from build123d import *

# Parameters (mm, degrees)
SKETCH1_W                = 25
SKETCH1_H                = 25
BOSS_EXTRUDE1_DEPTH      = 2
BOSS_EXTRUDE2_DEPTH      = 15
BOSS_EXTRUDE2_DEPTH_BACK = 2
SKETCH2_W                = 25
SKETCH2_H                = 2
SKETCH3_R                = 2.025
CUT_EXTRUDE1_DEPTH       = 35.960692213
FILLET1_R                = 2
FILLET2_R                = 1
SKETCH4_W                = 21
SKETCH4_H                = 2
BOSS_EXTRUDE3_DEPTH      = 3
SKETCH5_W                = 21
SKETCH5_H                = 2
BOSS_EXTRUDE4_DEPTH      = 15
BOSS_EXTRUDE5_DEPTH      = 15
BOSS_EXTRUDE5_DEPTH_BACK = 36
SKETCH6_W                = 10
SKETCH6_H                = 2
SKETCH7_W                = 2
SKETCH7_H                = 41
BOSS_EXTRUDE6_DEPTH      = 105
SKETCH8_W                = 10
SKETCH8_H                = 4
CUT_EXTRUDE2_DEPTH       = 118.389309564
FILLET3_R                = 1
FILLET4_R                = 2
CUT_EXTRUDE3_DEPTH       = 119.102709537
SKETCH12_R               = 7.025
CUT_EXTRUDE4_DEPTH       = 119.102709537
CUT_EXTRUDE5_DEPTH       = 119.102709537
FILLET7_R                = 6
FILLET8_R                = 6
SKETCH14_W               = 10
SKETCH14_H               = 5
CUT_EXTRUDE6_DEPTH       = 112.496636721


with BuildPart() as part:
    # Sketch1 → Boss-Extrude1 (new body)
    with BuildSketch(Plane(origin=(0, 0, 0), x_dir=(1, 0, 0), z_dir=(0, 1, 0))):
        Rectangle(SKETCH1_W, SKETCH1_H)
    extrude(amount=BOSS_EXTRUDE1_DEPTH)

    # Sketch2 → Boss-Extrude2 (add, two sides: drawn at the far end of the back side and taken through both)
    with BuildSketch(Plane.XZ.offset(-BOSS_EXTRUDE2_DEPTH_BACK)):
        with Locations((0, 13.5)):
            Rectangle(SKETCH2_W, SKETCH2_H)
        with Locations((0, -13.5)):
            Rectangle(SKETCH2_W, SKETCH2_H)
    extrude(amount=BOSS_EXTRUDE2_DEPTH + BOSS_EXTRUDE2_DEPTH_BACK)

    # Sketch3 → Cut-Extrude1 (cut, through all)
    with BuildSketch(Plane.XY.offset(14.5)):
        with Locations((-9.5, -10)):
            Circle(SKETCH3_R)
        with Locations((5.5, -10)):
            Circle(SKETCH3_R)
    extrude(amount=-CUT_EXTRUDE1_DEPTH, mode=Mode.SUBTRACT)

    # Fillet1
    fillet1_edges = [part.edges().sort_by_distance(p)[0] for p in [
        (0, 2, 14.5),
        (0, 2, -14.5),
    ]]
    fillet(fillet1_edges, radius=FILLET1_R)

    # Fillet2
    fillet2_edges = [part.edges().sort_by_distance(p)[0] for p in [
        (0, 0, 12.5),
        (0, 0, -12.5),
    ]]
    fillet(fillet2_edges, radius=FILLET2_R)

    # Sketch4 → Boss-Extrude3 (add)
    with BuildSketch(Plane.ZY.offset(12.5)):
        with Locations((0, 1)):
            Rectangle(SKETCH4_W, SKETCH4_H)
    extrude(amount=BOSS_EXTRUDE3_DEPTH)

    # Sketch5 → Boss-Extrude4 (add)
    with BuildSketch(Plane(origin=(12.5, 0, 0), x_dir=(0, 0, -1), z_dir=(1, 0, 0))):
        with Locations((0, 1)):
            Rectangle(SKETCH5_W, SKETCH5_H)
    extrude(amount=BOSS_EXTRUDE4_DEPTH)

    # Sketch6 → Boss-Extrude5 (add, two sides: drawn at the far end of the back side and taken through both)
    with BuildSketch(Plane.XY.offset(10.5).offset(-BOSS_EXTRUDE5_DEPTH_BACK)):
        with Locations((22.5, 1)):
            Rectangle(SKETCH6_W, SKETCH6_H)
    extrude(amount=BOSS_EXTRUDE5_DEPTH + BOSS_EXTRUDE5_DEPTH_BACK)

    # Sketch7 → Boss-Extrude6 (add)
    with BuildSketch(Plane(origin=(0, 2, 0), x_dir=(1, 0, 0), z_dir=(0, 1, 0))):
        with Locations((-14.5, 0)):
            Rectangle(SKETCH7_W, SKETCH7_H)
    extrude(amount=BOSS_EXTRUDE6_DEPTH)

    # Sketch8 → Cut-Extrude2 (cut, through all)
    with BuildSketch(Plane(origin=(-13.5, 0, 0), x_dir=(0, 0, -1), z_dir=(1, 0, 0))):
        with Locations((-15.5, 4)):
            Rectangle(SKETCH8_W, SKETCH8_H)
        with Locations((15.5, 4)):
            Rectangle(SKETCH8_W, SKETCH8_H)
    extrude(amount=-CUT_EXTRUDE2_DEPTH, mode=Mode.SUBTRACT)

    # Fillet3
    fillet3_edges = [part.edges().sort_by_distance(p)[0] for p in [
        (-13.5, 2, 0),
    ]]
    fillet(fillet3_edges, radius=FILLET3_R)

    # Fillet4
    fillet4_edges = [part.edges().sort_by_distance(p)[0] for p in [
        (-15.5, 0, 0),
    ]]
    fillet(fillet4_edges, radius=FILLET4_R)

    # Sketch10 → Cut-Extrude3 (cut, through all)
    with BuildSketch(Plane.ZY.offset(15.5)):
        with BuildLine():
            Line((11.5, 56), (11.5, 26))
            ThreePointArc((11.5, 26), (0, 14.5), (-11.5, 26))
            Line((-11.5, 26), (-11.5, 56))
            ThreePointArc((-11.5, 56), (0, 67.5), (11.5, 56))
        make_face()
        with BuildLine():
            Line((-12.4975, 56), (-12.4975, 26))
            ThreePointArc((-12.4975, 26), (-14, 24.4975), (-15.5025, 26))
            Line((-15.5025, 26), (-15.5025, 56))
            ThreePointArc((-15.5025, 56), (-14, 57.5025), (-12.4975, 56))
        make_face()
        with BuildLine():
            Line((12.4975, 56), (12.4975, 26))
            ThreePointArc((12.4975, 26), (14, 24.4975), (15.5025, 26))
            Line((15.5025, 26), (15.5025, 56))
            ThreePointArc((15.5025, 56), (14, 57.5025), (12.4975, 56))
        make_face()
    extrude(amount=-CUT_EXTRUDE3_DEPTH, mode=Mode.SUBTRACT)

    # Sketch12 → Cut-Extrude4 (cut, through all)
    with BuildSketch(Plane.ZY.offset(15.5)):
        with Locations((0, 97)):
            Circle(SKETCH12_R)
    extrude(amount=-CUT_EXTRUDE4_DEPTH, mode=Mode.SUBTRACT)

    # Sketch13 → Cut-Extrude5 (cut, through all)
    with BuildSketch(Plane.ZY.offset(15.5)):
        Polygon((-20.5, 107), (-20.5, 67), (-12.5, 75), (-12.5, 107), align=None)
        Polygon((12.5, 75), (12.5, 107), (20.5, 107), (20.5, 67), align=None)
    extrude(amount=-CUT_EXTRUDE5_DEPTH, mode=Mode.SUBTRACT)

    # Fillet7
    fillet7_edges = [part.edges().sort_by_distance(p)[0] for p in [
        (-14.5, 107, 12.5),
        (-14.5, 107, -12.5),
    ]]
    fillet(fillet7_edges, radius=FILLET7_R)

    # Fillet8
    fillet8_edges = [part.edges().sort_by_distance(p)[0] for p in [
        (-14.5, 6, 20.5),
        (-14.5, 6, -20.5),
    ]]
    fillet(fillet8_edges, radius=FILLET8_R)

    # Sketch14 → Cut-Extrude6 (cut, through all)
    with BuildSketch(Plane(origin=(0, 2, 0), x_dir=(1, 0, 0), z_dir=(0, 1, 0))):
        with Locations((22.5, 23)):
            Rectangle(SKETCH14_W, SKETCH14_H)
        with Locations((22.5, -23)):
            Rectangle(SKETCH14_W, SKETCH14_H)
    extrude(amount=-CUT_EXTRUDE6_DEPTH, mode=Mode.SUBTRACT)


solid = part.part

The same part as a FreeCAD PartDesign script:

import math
import FreeCAD as App
import Part
import Sketcher
from FreeCAD import Vector
Q = App.Units.Quantity


def edges_at(feature, points):
    """Names of the edges that pass closest to the given points."""
    edges = feature.Shape.Edges
    near = lambda p: min(range(len(edges)), key=lambda i: edges[i].distToShape(Part.Vertex(*p))[0])
    return sorted({f"Edge{near(p) + 1}" for p in points})

doc = App.newDocument("Part")
body = doc.addObject("PartDesign::Body", "Body")

# Sketch on XZ plane
sketch1 = body.newObject("Sketcher::SketchObject", "Sketch")
sketch1.AttachmentSupport = (doc.getObject("XZ_Plane"), [""])
sketch1.MapMode = "FlatFace"
sketch1.addGeometry(Part.LineSegment(Vector(-12, -12, 0), Vector(-12, 12, 0)), False)
sketch1.addGeometry(Part.LineSegment(Vector(-12, 12, 0), Vector(12, 12, 0)), False)
sketch1.addGeometry(Part.LineSegment(Vector(12, 12, 0), Vector(12, -12, 0)), False)
sketch1.addGeometry(Part.LineSegment(Vector(12, -12, 0), Vector(-12, -12, 0)), False)
sketch1.addConstraint(Sketcher.Constraint("Coincident", 0, 2, 1, 1))
sketch1.addConstraint(Sketcher.Constraint("Coincident", 1, 2, 2, 1))
sketch1.addConstraint(Sketcher.Constraint("Coincident", 2, 2, 3, 1))
sketch1.addConstraint(Sketcher.Constraint("Coincident", 3, 2, 0, 1))
sketch1.addConstraint(Sketcher.Constraint("Vertical", 0))
sketch1.addConstraint(Sketcher.Constraint("Horizontal", 1))
sketch1.addConstraint(Sketcher.Constraint("Vertical", 2))
sketch1.addConstraint(Sketcher.Constraint("Horizontal", 3))
sketch1.addConstraint(Sketcher.Constraint("Symmetric", 0, 2, 2, 2, -1, 1))
sketch1.addConstraint(Sketcher.Constraint("Equal", 3, 0))
sketch1.addConstraint(Sketcher.Constraint("DistanceX", 1, 1, 1, 2, Q("25 mm")))
pad1 = body.newObject("PartDesign::Pad", "Pad")
pad1.Profile = sketch1
pad1.Length = 2
pad1.Reversed = True

# Sketch on XZ plane
sketch2 = body.newObject("Sketcher::SketchObject", "Sketch001")
sketch2.AttachmentSupport = (doc.getObject("XZ_Plane"), [""])
sketch2.MapMode = "FlatFace"
sketch2.addGeometry(Part.LineSegment(Vector(-12.5, 14.5, 0), Vector(-12.5, 12.5, 0)), False)
sketch2.addGeometry(Part.LineSegment(Vector(-12.5, 12.5, 0), Vector(12.5, 12.5, 0)), False)
sketch2.addGeometry(Part.LineSegment(Vector(12.5, 12.5, 0), Vector(12.5, 14.5, 0)), False)
sketch2.addGeometry(Part.LineSegment(Vector(12.5, 14.5, 0), Vector(-12.5, 14.5, 0)), False)
sketch2.addGeometry(Part.LineSegment(Vector(-12.5, -12.5, 0), Vector(-12.5, -14.5, 0)), False)
sketch2.addGeometry(Part.LineSegment(Vector(-12.5, -14.5, 0), Vector(12.5, -14.5, 0)), False)
sketch2.addGeometry(Part.LineSegment(Vector(12.5, -14.5, 0), Vector(12.5, -12.5, 0)), False)
sketch2.addGeometry(Part.LineSegment(Vector(12.5, -12.5, 0), Vector(-12.5, -12.5, 0)), False)
sketch2.addConstraint(Sketcher.Constraint("Coincident", 0, 2, 1, 1))
sketch2.addConstraint(Sketcher.Constraint("Coincident", 1, 2, 2, 1))
sketch2.addConstraint(Sketcher.Constraint("Coincident", 2, 2, 3, 1))
sketch2.addConstraint(Sketcher.Constraint("Coincident", 3, 2, 0, 1))
sketch2.addConstraint(Sketcher.Constraint("Coincident", 4, 2, 5, 1))
sketch2.addConstraint(Sketcher.Constraint("Coincident", 5, 2, 6, 1))
sketch2.addConstraint(Sketcher.Constraint("Coincident", 6, 2, 7, 1))
sketch2.addConstraint(Sketcher.Constraint("Coincident", 7, 2, 4, 1))
sketch2.addConstraint(Sketcher.Constraint("Vertical", 0))
sketch2.addConstraint(Sketcher.Constraint("Horizontal", 1))
sketch2.addConstraint(Sketcher.Constraint("Vertical", 2))
sketch2.addConstraint(Sketcher.Constraint("Horizontal", 3))
sketch2.addConstraint(Sketcher.Constraint("Vertical", 4))
sketch2.addConstraint(Sketcher.Constraint("Horizontal", 5))
sketch2.addConstraint(Sketcher.Constraint("Vertical", 6))
sketch2.addConstraint(Sketcher.Constraint("Horizontal", 7))
sketch2.addConstraint(Sketcher.Constraint("Symmetric", 2, 2, 4, 2, -1, 1))
sketch2.addConstraint(Sketcher.Constraint("Symmetric", 0, 2, 6, 2, -1, 1))
sketch2.addConstraint(Sketcher.Constraint("Vertical", 3, 2, 4, 2))
sketch2.addConstraint(Sketcher.Constraint("DistanceX", 1, 1, 1, 2, Q("25 mm")))
sketch2.addConstraint(Sketcher.Constraint("DistanceY", 0, 2, 0, 1, Q("2 mm")))
sketch2.addConstraint(Sketcher.Constraint("DistanceY", 4, 2, 0, 2, Q("27 mm")))
pad2 = body.newObject("PartDesign::Pad", "Pad001")
pad2.Profile = sketch2
pad2.Type = "TwoLengths"
pad2.Length = 15
pad2.Length2 = 2

# Sketch on XY plane
sketch3 = body.newObject("Sketcher::SketchObject", "Sketch002")
sketch3.AttachmentSupport = (doc.getObject("XY_Plane"), [""])
sketch3.MapMode = "FlatFace"
sketch3.AttachmentOffset = App.Placement(Vector(0, 0, 14.5), App.Rotation())
sketch3.addGeometry(Part.Circle(Vector(-9.5, -10, 0), Vector(0, 0, 1), 2), False)
sketch3.addGeometry(Part.Circle(Vector(5.5, -10, 0), Vector(0, 0, 1), 2), False)
sketch3.addConstraint(Sketcher.Constraint("Equal", 0, 1))
sketch3.addConstraint(Sketcher.Constraint("Horizontal", 0, 3, 1, 3))
sketch3.addConstraint(Sketcher.Constraint("Diameter", 0, Q("4.05 mm")))
sketch3.addConstraint(Sketcher.Constraint("DistanceY", 0, 3, -1, 1, Q("10 mm")))
sketch3.addConstraint(Sketcher.Constraint("DistanceX", 0, 3, 1, 3, Q("15 mm")))
sketch3.addConstraint(Sketcher.Constraint("DistanceX", 0, 3, -1, 1, Q("9.5 mm")))
pocket1 = body.newObject("PartDesign::Pocket", "Pocket")
pocket1.Profile = sketch3
pocket1.Type = "ThroughAll"
doc.recompute()

fillet = body.newObject("PartDesign::Fillet", "Fillet")
fillet.Base = (pocket1, edges_at(pocket1, [(0, 2, 14.5), (0, 2, -14.5)]))
fillet.Radius = 2
doc.recompute()

fillet2 = body.newObject("PartDesign::Fillet", "Fillet001")
fillet2.Base = (fillet, edges_at(fillet, [(0, 0, 12.5), (0, 0, -12.5)]))
fillet2.Radius = 1

# Sketch on YZ plane
sketch4 = body.newObject("Sketcher::SketchObject", "Sketch003")
sketch4.AttachmentSupport = (doc.getObject("YZ_Plane"), [""])
sketch4.MapMode = "FlatFace"
sketch4.AttachmentOffset = App.Placement(Vector(0, 0, -12.5), App.Rotation())
sketch4.addGeometry(Part.LineSegment(Vector(2, -10.5, 0), Vector(0, -10.5, 0)), False)
sketch4.addGeometry(Part.LineSegment(Vector(0, -10.5, 0), Vector(0, 10.5, 0)), False)
sketch4.addGeometry(Part.LineSegment(Vector(0, 10.5, 0), Vector(2, 10.5, 0)), False)
sketch4.addGeometry(Part.LineSegment(Vector(2, 10.5, 0), Vector(2, -10.5, 0)), False)
sketch4.addConstraint(Sketcher.Constraint("Coincident", 0, 2, 1, 1))
sketch4.addConstraint(Sketcher.Constraint("Coincident", 1, 2, 2, 1))
sketch4.addConstraint(Sketcher.Constraint("Coincident", 2, 2, 3, 1))
sketch4.addConstraint(Sketcher.Constraint("Coincident", 3, 2, 0, 1))
sketch4.addConstraint(Sketcher.Constraint("Horizontal", 0))
sketch4.addConstraint(Sketcher.Constraint("Vertical", 1))
sketch4.addConstraint(Sketcher.Constraint("Horizontal", 2))
sketch4.addConstraint(Sketcher.Constraint("Vertical", 3))
sketch4.addConstraint(Sketcher.Constraint("Symmetric", 0, 2, 1, 2, -1, 1))
sketch4.addConstraint(Sketcher.Constraint("DistanceX", 0, 2, 0, 1, Q("2 mm")))
sketch4.addConstraint(Sketcher.Constraint("DistanceY", 1, 1, 1, 2, Q("21 mm")))
pad3 = body.newObject("PartDesign::Pad", "Pad002")
pad3.Profile = sketch4
pad3.Length = 3
pad3.Reversed = True

# Sketch on YZ plane
sketch5 = body.newObject("Sketcher::SketchObject", "Sketch004")
sketch5.AttachmentSupport = (doc.getObject("YZ_Plane"), [""])
sketch5.MapMode = "FlatFace"
sketch5.AttachmentOffset = App.Placement(Vector(0, 0, 12.5), App.Rotation())
sketch5.addGeometry(Part.LineSegment(Vector(2, 10.5, 0), Vector(0, 10.5, 0)), False)
sketch5.addGeometry(Part.LineSegment(Vector(0, 10.5, 0), Vector(0, -10.5, 0)), False)
sketch5.addGeometry(Part.LineSegment(Vector(0, -10.5, 0), Vector(2, -10.5, 0)), False)
sketch5.addGeometry(Part.LineSegment(Vector(2, -10.5, 0), Vector(2, 10.5, 0)), False)
sketch5.addConstraint(Sketcher.Constraint("Coincident", 0, 2, 1, 1))
sketch5.addConstraint(Sketcher.Constraint("Coincident", 1, 2, 2, 1))
sketch5.addConstraint(Sketcher.Constraint("Coincident", 2, 2, 3, 1))
sketch5.addConstraint(Sketcher.Constraint("Coincident", 3, 2, 0, 1))
sketch5.addConstraint(Sketcher.Constraint("Horizontal", 0))
sketch5.addConstraint(Sketcher.Constraint("Vertical", 1))
sketch5.addConstraint(Sketcher.Constraint("Horizontal", 2))
sketch5.addConstraint(Sketcher.Constraint("Vertical", 3))
sketch5.addConstraint(Sketcher.Constraint("Symmetric", 0, 2, 1, 2, -1, 1))
sketch5.addConstraint(Sketcher.Constraint("DistanceX", 0, 2, 0, 1, Q("2 mm")))
sketch5.addConstraint(Sketcher.Constraint("DistanceY", 1, 2, 1, 1, Q("21 mm")))
pad4 = body.newObject("PartDesign::Pad", "Pad003")
pad4.Profile = sketch5
pad4.Length = 15

# Sketch on XY plane
sketch6 = body.newObject("Sketcher::SketchObject", "Sketch005")
sketch6.AttachmentSupport = (doc.getObject("XY_Plane"), [""])
sketch6.MapMode = "FlatFace"
sketch6.AttachmentOffset = App.Placement(Vector(0, 0, 10.5), App.Rotation())
sketch6.addGeometry(Part.LineSegment(Vector(17.5, 2, 0), Vector(17.5, 0, 0)), False)
sketch6.addGeometry(Part.LineSegment(Vector(17.5, 0, 0), Vector(27.5, 0, 0)), False)
sketch6.addGeometry(Part.LineSegment(Vector(27.5, 0, 0), Vector(27.5, 2, 0)), False)
sketch6.addGeometry(Part.LineSegment(Vector(27.5, 2, 0), Vector(17.5, 2, 0)), False)
sketch6.addConstraint(Sketcher.Constraint("Coincident", 0, 2, 1, 1))
sketch6.addConstraint(Sketcher.Constraint("Coincident", 1, 2, 2, 1))
sketch6.addConstraint(Sketcher.Constraint("Coincident", 2, 2, 3, 1))
sketch6.addConstraint(Sketcher.Constraint("Coincident", 3, 2, 0, 1))
sketch6.addConstraint(Sketcher.Constraint("Vertical", 0))
sketch6.addConstraint(Sketcher.Constraint("Horizontal", 1))
sketch6.addConstraint(Sketcher.Constraint("Vertical", 2))
sketch6.addConstraint(Sketcher.Constraint("Horizontal", 3))
sketch6.addConstraint(Sketcher.Constraint("PointOnObject", 0, 2, -1))
sketch6.addConstraint(Sketcher.Constraint("DistanceX", 1, 1, 1, 2, Q("10 mm")))
sketch6.addConstraint(Sketcher.Constraint("DistanceY", 0, 2, 0, 1, Q("2 mm")))
sketch6.addConstraint(Sketcher.Constraint("DistanceX", -1, 1, 0, 2, Q("17.5 mm")))
pad5 = body.newObject("PartDesign::Pad", "Pad004")
pad5.Profile = sketch6
pad5.Type = "TwoLengths"
pad5.Length = 15
pad5.Length2 = 36

# Sketch on XZ plane
sketch7 = body.newObject("Sketcher::SketchObject", "Sketch006")
sketch7.AttachmentSupport = (doc.getObject("XZ_Plane"), [""])
sketch7.MapMode = "FlatFace"
sketch7.AttachmentOffset = App.Placement(Vector(0, 0, -2), App.Rotation())
sketch7.addGeometry(Part.LineSegment(Vector(-15.5, -20.5, 0), Vector(-15.5, 20.5, 0)), False)
sketch7.addGeometry(Part.LineSegment(Vector(-15.5, 20.5, 0), Vector(-13.5, 20.5, 0)), False)
sketch7.addGeometry(Part.LineSegment(Vector(-13.5, 20.5, 0), Vector(-13.5, -20.5, 0)), False)
sketch7.addGeometry(Part.LineSegment(Vector(-13.5, -20.5, 0), Vector(-15.5, -20.5, 0)), False)
sketch7.addConstraint(Sketcher.Constraint("Coincident", 0, 2, 1, 1))
sketch7.addConstraint(Sketcher.Constraint("Coincident", 1, 2, 2, 1))
sketch7.addConstraint(Sketcher.Constraint("Coincident", 2, 2, 3, 1))
sketch7.addConstraint(Sketcher.Constraint("Coincident", 3, 2, 0, 1))
sketch7.addConstraint(Sketcher.Constraint("Vertical", 0))
sketch7.addConstraint(Sketcher.Constraint("Horizontal", 1))
sketch7.addConstraint(Sketcher.Constraint("Vertical", 2))
sketch7.addConstraint(Sketcher.Constraint("Horizontal", 3))
sketch7.addConstraint(Sketcher.Constraint("DistanceX", 1, 1, 1, 2, Q("2 mm")))
sketch7.addConstraint(Sketcher.Constraint("DistanceY", 0, 1, 0, 2, Q("41 mm")))
sketch7.addConstraint(Sketcher.Constraint("DistanceX", 0, 2, -1, 1, Q("15.5 mm")))
sketch7.addConstraint(Sketcher.Constraint("DistanceY", -1, 1, 0, 2, Q("20.5 mm")))
pad6 = body.newObject("PartDesign::Pad", "Pad005")
pad6.Profile = sketch7
pad6.Length = 105
pad6.Reversed = True

# Sketch on YZ plane
sketch8 = body.newObject("Sketcher::SketchObject", "Sketch007")
sketch8.AttachmentSupport = (doc.getObject("YZ_Plane"), [""])
sketch8.MapMode = "FlatFace"
sketch8.AttachmentOffset = App.Placement(Vector(0, 0, -13.5), App.Rotation())
sketch8.addGeometry(Part.LineSegment(Vector(6, 20.5, 0), Vector(2, 20.5, 0)), False)
sketch8.addGeometry(Part.LineSegment(Vector(2, 20.5, 0), Vector(2, 10.5, 0)), False)
sketch8.addGeometry(Part.LineSegment(Vector(2, 10.5, 0), Vector(6, 10.5, 0)), False)
sketch8.addGeometry(Part.LineSegment(Vector(6, 10.5, 0), Vector(6, 20.5, 0)), False)
sketch8.addGeometry(Part.LineSegment(Vector(6, -10.5, 0), Vector(2, -10.5, 0)), False)
sketch8.addGeometry(Part.LineSegment(Vector(2, -10.5, 0), Vector(2, -20.5, 0)), False)
sketch8.addGeometry(Part.LineSegment(Vector(2, -20.5, 0), Vector(6, -20.5, 0)), False)
sketch8.addGeometry(Part.LineSegment(Vector(6, -20.5, 0), Vector(6, -10.5, 0)), False)
sketch8.addConstraint(Sketcher.Constraint("Coincident", 0, 2, 1, 1))
sketch8.addConstraint(Sketcher.Constraint("Coincident", 1, 2, 2, 1))
sketch8.addConstraint(Sketcher.Constraint("Coincident", 2, 2, 3, 1))
sketch8.addConstraint(Sketcher.Constraint("Coincident", 3, 2, 0, 1))
sketch8.addConstraint(Sketcher.Constraint("Coincident", 4, 2, 5, 1))
sketch8.addConstraint(Sketcher.Constraint("Coincident", 5, 2, 6, 1))
sketch8.addConstraint(Sketcher.Constraint("Coincident", 6, 2, 7, 1))
sketch8.addConstraint(Sketcher.Constraint("Coincident", 7, 2, 4, 1))
sketch8.addConstraint(Sketcher.Constraint("Horizontal", 0))
sketch8.addConstraint(Sketcher.Constraint("Vertical", 1))
sketch8.addConstraint(Sketcher.Constraint("Horizontal", 2))
sketch8.addConstraint(Sketcher.Constraint("Vertical", 3))
sketch8.addConstraint(Sketcher.Constraint("Horizontal", 4))
sketch8.addConstraint(Sketcher.Constraint("Vertical", 5))
sketch8.addConstraint(Sketcher.Constraint("Horizontal", 6))
sketch8.addConstraint(Sketcher.Constraint("Vertical", 7))
sketch8.addConstraint(Sketcher.Constraint("Symmetric", 1, 2, 4, 2, -1))
sketch8.addConstraint(Sketcher.Constraint("Symmetric", 3, 2, 6, 2, -1))
sketch8.addConstraint(Sketcher.Constraint("DistanceX", 0, 2, 0, 1, Q("4 mm")))
sketch8.addConstraint(Sketcher.Constraint("DistanceY", 1, 2, 1, 1, Q("10 mm")))
sketch8.addConstraint(Sketcher.Constraint("DistanceX", -1, 1, 0, 2, Q("2 mm")))
sketch8.addConstraint(Sketcher.Constraint("DistanceY", 4, 2, 1, 2, Q("21 mm")))
pocket2 = body.newObject("PartDesign::Pocket", "Pocket001")
pocket2.Profile = sketch8
pocket2.Type = "ThroughAll"
doc.recompute()

fillet3 = body.newObject("PartDesign::Fillet", "Fillet002")
fillet3.Base = (pocket2, edges_at(pocket2, [(-13.5, 2, 0)]))
fillet3.Radius = 1
doc.recompute()

fillet4 = body.newObject("PartDesign::Fillet", "Fillet003")
fillet4.Base = (fillet3, edges_at(fillet3, [(-15.5, 0, 0)]))
fillet4.Radius = 2

# Sketch on YZ plane
sketch9 = body.newObject("Sketcher::SketchObject", "Sketch008")
sketch9.AttachmentSupport = (doc.getObject("YZ_Plane"), [""])
sketch9.MapMode = "FlatFace"
sketch9.AttachmentOffset = App.Placement(Vector(0, 0, -15.5), App.Rotation())
sketch9.addGeometry(Part.LineSegment(Vector(26, 11.5, 0), Vector(56, 11.5, 0)), False)
sketch9.addGeometry(Part.ArcOfCircle(Part.Circle(Vector(56, 0, 0), Vector(0, 0, 1), 11.5), math.radians(-90), math.radians(90)), False)
sketch9.addGeometry(Part.LineSegment(Vector(56, -11.5, 0), Vector(26, -11.5, 0)), False)
sketch9.addGeometry(Part.ArcOfCircle(Part.Circle(Vector(26, 0, 0), Vector(0, 0, 1), 11.5), math.radians(90), math.radians(270)), False)
sketch9.addGeometry(Part.LineSegment(Vector(26, -12.5, 0), Vector(56, -12.5, 0)), False)
sketch9.addGeometry(Part.ArcOfCircle(Part.Circle(Vector(56, -14, 0), Vector(0, 0, 1), 1.5), math.radians(-90), math.radians(90)), False)
sketch9.addGeometry(Part.LineSegment(Vector(56, -15.5, 0), Vector(26, -15.5, 0)), False)
sketch9.addGeometry(Part.ArcOfCircle(Part.Circle(Vector(26, -14, 0), Vector(0, 0, 1), 1.5), math.radians(90), math.radians(270)), False)
sketch9.addGeometry(Part.LineSegment(Vector(56, 12.5, 0), Vector(26, 12.5, 0)), False)
sketch9.addGeometry(Part.ArcOfCircle(Part.Circle(Vector(26, 14, 0), Vector(0, 0, 1), 1.5), math.radians(90), math.radians(270)), False)
sketch9.addGeometry(Part.LineSegment(Vector(26, 15.5, 0), Vector(56, 15.5, 0)), False)
sketch9.addGeometry(Part.ArcOfCircle(Part.Circle(Vector(56, 14, 0), Vector(0, 0, 1), 1.5), math.radians(-90), math.radians(90)), False)
sketch9.addConstraint(Sketcher.Constraint("Tangent", 0, 2, 1, 2))
sketch9.addConstraint(Sketcher.Constraint("Tangent", 1, 1, 2, 1))
sketch9.addConstraint(Sketcher.Constraint("Tangent", 2, 2, 3, 2))
sketch9.addConstraint(Sketcher.Constraint("Tangent", 3, 1, 0, 1))
sketch9.addConstraint(Sketcher.Constraint("Tangent", 4, 2, 5, 2))
sketch9.addConstraint(Sketcher.Constraint("Tangent", 5, 1, 6, 1))
sketch9.addConstraint(Sketcher.Constraint("Tangent", 6, 2, 7, 2))
sketch9.addConstraint(Sketcher.Constraint("Tangent", 7, 1, 4, 1))
sketch9.addConstraint(Sketcher.Constraint("Tangent", 8, 2, 9, 2))
sketch9.addConstraint(Sketcher.Constraint("Tangent", 9, 1, 10, 1))
sketch9.addConstraint(Sketcher.Constraint("Tangent", 10, 2, 11, 2))
sketch9.addConstraint(Sketcher.Constraint("Tangent", 11, 1, 8, 1))
sketch9.addConstraint(Sketcher.Constraint("Horizontal", 0))
sketch9.addConstraint(Sketcher.Constraint("Horizontal", 2))
sketch9.addConstraint(Sketcher.Constraint("Horizontal", 4))
sketch9.addConstraint(Sketcher.Constraint("Horizontal", 6))
sketch9.addConstraint(Sketcher.Constraint("Horizontal", 8))
sketch9.addConstraint(Sketcher.Constraint("Horizontal", 10))
sketch9.addConstraint(Sketcher.Constraint("Equal", 7, 9))
sketch9.addConstraint(Sketcher.Constraint("Symmetric", 7, 3, 9, 3, -1))
sketch9.addConstraint(Sketcher.Constraint("PointOnObject", 1, 3, -1))
sketch9.addConstraint(Sketcher.Constraint("Vertical", 1, 3, 5, 3))
sketch9.addConstraint(Sketcher.Constraint("Vertical", 3, 3, 7, 3))
sketch9.addConstraint(Sketcher.Constraint("Vertical", 5, 3, 11, 3))
sketch9.addConstraint(Sketcher.Constraint("Radius", 1, Q("11.5 mm")))
sketch9.addConstraint(Sketcher.Constraint("DistanceX", 0, 1, 0, 2, Q("30 mm")))
sketch9.addConstraint(Sketcher.Constraint("DistanceX", -1, 1, 1, 3, Q("56 mm")))
sketch9.addConstraint(Sketcher.Constraint("DistanceY", 5, 3, -1, 1, Q("14 mm")))
sketch9.addConstraint(Sketcher.Constraint("Radius", 5, Q("1.5025 mm")))
pocket3 = body.newObject("PartDesign::Pocket", "Pocket002")
pocket3.Profile = sketch9
pocket3.Type = "ThroughAll"
pocket3.Reversed = True

# Sketch on YZ plane
sketch10 = body.newObject("Sketcher::SketchObject", "Sketch009")
sketch10.AttachmentSupport = (doc.getObject("YZ_Plane"), [""])
sketch10.MapMode = "FlatFace"
sketch10.AttachmentOffset = App.Placement(Vector(0, 0, -15.5), App.Rotation())
sketch10.addGeometry(Part.Circle(Vector(97, 0, 0), Vector(0, 0, 1), 7), False)
sketch10.addConstraint(Sketcher.Constraint("PointOnObject", 0, 3, -1))
sketch10.addConstraint(Sketcher.Constraint("Diameter", 0, Q("14.05 mm")))
sketch10.addConstraint(Sketcher.Constraint("DistanceX", -1, 1, 0, 3, Q("97 mm")))
pocket4 = body.newObject("PartDesign::Pocket", "Pocket003")
pocket4.Profile = sketch10
pocket4.Type = "ThroughAll"
pocket4.Reversed = True

# Sketch on YZ plane
sketch11 = body.newObject("Sketcher::SketchObject", "Sketch010")
sketch11.AttachmentSupport = (doc.getObject("YZ_Plane"), [""])
sketch11.MapMode = "FlatFace"
sketch11.AttachmentOffset = App.Placement(Vector(0, 0, -15.5), App.Rotation())
sketch11.addGeometry(Part.LineSegment(Vector(107, -20, 0), Vector(67, -20, 0)), False)
sketch11.addGeometry(Part.LineSegment(Vector(67, -20, 0), Vector(75, -12, 0)), False)
sketch11.addGeometry(Part.LineSegment(Vector(75, -12, 0), Vector(107, -12, 0)), False)
sketch11.addGeometry(Part.LineSegment(Vector(107, -12, 0), Vector(107, -20, 0)), False)
sketch11.addGeometry(Part.LineSegment(Vector(107, 12, 0), Vector(75, 12, 0)), False)
sketch11.addGeometry(Part.LineSegment(Vector(75, 12, 0), Vector(67, 20, 0)), False)
sketch11.addGeometry(Part.LineSegment(Vector(67, 20, 0), Vector(107, 20, 0)), False)
sketch11.addGeometry(Part.LineSegment(Vector(107, 20, 0), Vector(107, 12, 0)), False)
sketch11.addConstraint(Sketcher.Constraint("Coincident", 0, 2, 1, 1))
sketch11.addConstraint(Sketcher.Constraint("Coincident", 1, 2, 2, 1))
sketch11.addConstraint(Sketcher.Constraint("Coincident", 2, 2, 3, 1))
sketch11.addConstraint(Sketcher.Constraint("Coincident", 3, 2, 0, 1))
sketch11.addConstraint(Sketcher.Constraint("Coincident", 4, 2, 5, 1))
sketch11.addConstraint(Sketcher.Constraint("Coincident", 5, 2, 6, 1))
sketch11.addConstraint(Sketcher.Constraint("Coincident", 6, 2, 7, 1))
sketch11.addConstraint(Sketcher.Constraint("Coincident", 7, 2, 4, 1))
sketch11.addConstraint(Sketcher.Constraint("Horizontal", 0))
sketch11.addConstraint(Sketcher.Constraint("Horizontal", 2))
sketch11.addConstraint(Sketcher.Constraint("Vertical", 3))
sketch11.addConstraint(Sketcher.Constraint("Horizontal", 4))
sketch11.addConstraint(Sketcher.Constraint("Horizontal", 6))
sketch11.addConstraint(Sketcher.Constraint("Vertical", 7))
sketch11.addConstraint(Sketcher.Constraint("Symmetric", 1, 2, 4, 2, -1))
sketch11.addConstraint(Sketcher.Constraint("Symmetric", 0, 2, 5, 2, -1))
sketch11.addConstraint(Sketcher.Constraint("Perpendicular", 1, 5))
sketch11.addConstraint(Sketcher.Constraint("Vertical", 3, 2, 6, 2))
sketch11.addConstraint(Sketcher.Constraint("DistanceX", 0, 2, 0, 1, Q("40 mm")))
sketch11.addConstraint(Sketcher.Constraint("DistanceX", 2, 1, 2, 2, Q("32 mm")))
sketch11.addConstraint(Sketcher.Constraint("DistanceX", -1, 1, 0, 2, Q("67 mm")))
sketch11.addConstraint(Sketcher.Constraint("DistanceY", 1, 2, 4, 2, Q("25 mm")))
pocket5 = body.newObject("PartDesign::Pocket", "Pocket004")
pocket5.Profile = sketch11
pocket5.Type = "ThroughAll"
pocket5.Reversed = True
doc.recompute()

fillet5 = body.newObject("PartDesign::Fillet", "Fillet004")
fillet5.Base = (pocket5, edges_at(pocket5, [(-14.5, 107, 12.5), (-14.5, 107, -12.5)]))
fillet5.Radius = 6
doc.recompute()

fillet6 = body.newObject("PartDesign::Fillet", "Fillet005")
fillet6.Base = (fillet5, edges_at(fillet5, [(-14.5, 6, 20.5), (-14.5, 6, -20.5)]))
fillet6.Radius = 6

# Sketch on XZ plane
sketch12 = body.newObject("Sketcher::SketchObject", "Sketch011")
sketch12.AttachmentSupport = (doc.getObject("XZ_Plane"), [""])
sketch12.MapMode = "FlatFace"
sketch12.AttachmentOffset = App.Placement(Vector(0, 0, -2), App.Rotation())
sketch12.addGeometry(Part.LineSegment(Vector(18, -26, 0), Vector(18, -20, 0)), False)
sketch12.addGeometry(Part.LineSegment(Vector(18, -20, 0), Vector(28, -20, 0)), False)
sketch12.addGeometry(Part.LineSegment(Vector(28, -20, 0), Vector(28, -26, 0)), False)
sketch12.addGeometry(Part.LineSegment(Vector(28, -26, 0), Vector(18, -26, 0)), False)
sketch12.addGeometry(Part.LineSegment(Vector(18, 20, 0), Vector(18, 26, 0)), False)
sketch12.addGeometry(Part.LineSegment(Vector(18, 26, 0), Vector(28, 26, 0)), False)
sketch12.addGeometry(Part.LineSegment(Vector(28, 26, 0), Vector(28, 20, 0)), False)
sketch12.addGeometry(Part.LineSegment(Vector(28, 20, 0), Vector(18, 20, 0)), False)
sketch12.addConstraint(Sketcher.Constraint("Coincident", 0, 2, 1, 1))
sketch12.addConstraint(Sketcher.Constraint("Coincident", 1, 2, 2, 1))
sketch12.addConstraint(Sketcher.Constraint("Coincident", 2, 2, 3, 1))
sketch12.addConstraint(Sketcher.Constraint("Coincident", 3, 2, 0, 1))
sketch12.addConstraint(Sketcher.Constraint("Coincident", 4, 2, 5, 1))
sketch12.addConstraint(Sketcher.Constraint("Coincident", 5, 2, 6, 1))
sketch12.addConstraint(Sketcher.Constraint("Coincident", 6, 2, 7, 1))
sketch12.addConstraint(Sketcher.Constraint("Coincident", 7, 2, 4, 1))
sketch12.addConstraint(Sketcher.Constraint("Vertical", 0))
sketch12.addConstraint(Sketcher.Constraint("Horizontal", 1))
sketch12.addConstraint(Sketcher.Constraint("Vertical", 2))
sketch12.addConstraint(Sketcher.Constraint("Horizontal", 3))
sketch12.addConstraint(Sketcher.Constraint("Vertical", 4))
sketch12.addConstraint(Sketcher.Constraint("Horizontal", 5))
sketch12.addConstraint(Sketcher.Constraint("Vertical", 6))
sketch12.addConstraint(Sketcher.Constraint("Horizontal", 7))
sketch12.addConstraint(Sketcher.Constraint("Symmetric", 3, 2, 4, 2, -1))
sketch12.addConstraint(Sketcher.Constraint("Symmetric", 1, 2, 6, 2, -1))
sketch12.addConstraint(Sketcher.Constraint("DistanceX", 1, 1, 1, 2, Q("10 mm")))
sketch12.addConstraint(Sketcher.Constraint("DistanceY", 0, 1, 0, 2, Q("5 mm")))
sketch12.addConstraint(Sketcher.Constraint("DistanceY", 0, 2, 4, 2, Q("46 mm")))
sketch12.addConstraint(Sketcher.Constraint("DistanceX", -1, 1, 0, 2, Q("17.5 mm")))
pocket6 = body.newObject("PartDesign::Pocket", "Pocket005")
pocket6.Profile = sketch12
pocket6.Type = "ThroughAll"
pocket6.Reversed = True

doc.recompute()
